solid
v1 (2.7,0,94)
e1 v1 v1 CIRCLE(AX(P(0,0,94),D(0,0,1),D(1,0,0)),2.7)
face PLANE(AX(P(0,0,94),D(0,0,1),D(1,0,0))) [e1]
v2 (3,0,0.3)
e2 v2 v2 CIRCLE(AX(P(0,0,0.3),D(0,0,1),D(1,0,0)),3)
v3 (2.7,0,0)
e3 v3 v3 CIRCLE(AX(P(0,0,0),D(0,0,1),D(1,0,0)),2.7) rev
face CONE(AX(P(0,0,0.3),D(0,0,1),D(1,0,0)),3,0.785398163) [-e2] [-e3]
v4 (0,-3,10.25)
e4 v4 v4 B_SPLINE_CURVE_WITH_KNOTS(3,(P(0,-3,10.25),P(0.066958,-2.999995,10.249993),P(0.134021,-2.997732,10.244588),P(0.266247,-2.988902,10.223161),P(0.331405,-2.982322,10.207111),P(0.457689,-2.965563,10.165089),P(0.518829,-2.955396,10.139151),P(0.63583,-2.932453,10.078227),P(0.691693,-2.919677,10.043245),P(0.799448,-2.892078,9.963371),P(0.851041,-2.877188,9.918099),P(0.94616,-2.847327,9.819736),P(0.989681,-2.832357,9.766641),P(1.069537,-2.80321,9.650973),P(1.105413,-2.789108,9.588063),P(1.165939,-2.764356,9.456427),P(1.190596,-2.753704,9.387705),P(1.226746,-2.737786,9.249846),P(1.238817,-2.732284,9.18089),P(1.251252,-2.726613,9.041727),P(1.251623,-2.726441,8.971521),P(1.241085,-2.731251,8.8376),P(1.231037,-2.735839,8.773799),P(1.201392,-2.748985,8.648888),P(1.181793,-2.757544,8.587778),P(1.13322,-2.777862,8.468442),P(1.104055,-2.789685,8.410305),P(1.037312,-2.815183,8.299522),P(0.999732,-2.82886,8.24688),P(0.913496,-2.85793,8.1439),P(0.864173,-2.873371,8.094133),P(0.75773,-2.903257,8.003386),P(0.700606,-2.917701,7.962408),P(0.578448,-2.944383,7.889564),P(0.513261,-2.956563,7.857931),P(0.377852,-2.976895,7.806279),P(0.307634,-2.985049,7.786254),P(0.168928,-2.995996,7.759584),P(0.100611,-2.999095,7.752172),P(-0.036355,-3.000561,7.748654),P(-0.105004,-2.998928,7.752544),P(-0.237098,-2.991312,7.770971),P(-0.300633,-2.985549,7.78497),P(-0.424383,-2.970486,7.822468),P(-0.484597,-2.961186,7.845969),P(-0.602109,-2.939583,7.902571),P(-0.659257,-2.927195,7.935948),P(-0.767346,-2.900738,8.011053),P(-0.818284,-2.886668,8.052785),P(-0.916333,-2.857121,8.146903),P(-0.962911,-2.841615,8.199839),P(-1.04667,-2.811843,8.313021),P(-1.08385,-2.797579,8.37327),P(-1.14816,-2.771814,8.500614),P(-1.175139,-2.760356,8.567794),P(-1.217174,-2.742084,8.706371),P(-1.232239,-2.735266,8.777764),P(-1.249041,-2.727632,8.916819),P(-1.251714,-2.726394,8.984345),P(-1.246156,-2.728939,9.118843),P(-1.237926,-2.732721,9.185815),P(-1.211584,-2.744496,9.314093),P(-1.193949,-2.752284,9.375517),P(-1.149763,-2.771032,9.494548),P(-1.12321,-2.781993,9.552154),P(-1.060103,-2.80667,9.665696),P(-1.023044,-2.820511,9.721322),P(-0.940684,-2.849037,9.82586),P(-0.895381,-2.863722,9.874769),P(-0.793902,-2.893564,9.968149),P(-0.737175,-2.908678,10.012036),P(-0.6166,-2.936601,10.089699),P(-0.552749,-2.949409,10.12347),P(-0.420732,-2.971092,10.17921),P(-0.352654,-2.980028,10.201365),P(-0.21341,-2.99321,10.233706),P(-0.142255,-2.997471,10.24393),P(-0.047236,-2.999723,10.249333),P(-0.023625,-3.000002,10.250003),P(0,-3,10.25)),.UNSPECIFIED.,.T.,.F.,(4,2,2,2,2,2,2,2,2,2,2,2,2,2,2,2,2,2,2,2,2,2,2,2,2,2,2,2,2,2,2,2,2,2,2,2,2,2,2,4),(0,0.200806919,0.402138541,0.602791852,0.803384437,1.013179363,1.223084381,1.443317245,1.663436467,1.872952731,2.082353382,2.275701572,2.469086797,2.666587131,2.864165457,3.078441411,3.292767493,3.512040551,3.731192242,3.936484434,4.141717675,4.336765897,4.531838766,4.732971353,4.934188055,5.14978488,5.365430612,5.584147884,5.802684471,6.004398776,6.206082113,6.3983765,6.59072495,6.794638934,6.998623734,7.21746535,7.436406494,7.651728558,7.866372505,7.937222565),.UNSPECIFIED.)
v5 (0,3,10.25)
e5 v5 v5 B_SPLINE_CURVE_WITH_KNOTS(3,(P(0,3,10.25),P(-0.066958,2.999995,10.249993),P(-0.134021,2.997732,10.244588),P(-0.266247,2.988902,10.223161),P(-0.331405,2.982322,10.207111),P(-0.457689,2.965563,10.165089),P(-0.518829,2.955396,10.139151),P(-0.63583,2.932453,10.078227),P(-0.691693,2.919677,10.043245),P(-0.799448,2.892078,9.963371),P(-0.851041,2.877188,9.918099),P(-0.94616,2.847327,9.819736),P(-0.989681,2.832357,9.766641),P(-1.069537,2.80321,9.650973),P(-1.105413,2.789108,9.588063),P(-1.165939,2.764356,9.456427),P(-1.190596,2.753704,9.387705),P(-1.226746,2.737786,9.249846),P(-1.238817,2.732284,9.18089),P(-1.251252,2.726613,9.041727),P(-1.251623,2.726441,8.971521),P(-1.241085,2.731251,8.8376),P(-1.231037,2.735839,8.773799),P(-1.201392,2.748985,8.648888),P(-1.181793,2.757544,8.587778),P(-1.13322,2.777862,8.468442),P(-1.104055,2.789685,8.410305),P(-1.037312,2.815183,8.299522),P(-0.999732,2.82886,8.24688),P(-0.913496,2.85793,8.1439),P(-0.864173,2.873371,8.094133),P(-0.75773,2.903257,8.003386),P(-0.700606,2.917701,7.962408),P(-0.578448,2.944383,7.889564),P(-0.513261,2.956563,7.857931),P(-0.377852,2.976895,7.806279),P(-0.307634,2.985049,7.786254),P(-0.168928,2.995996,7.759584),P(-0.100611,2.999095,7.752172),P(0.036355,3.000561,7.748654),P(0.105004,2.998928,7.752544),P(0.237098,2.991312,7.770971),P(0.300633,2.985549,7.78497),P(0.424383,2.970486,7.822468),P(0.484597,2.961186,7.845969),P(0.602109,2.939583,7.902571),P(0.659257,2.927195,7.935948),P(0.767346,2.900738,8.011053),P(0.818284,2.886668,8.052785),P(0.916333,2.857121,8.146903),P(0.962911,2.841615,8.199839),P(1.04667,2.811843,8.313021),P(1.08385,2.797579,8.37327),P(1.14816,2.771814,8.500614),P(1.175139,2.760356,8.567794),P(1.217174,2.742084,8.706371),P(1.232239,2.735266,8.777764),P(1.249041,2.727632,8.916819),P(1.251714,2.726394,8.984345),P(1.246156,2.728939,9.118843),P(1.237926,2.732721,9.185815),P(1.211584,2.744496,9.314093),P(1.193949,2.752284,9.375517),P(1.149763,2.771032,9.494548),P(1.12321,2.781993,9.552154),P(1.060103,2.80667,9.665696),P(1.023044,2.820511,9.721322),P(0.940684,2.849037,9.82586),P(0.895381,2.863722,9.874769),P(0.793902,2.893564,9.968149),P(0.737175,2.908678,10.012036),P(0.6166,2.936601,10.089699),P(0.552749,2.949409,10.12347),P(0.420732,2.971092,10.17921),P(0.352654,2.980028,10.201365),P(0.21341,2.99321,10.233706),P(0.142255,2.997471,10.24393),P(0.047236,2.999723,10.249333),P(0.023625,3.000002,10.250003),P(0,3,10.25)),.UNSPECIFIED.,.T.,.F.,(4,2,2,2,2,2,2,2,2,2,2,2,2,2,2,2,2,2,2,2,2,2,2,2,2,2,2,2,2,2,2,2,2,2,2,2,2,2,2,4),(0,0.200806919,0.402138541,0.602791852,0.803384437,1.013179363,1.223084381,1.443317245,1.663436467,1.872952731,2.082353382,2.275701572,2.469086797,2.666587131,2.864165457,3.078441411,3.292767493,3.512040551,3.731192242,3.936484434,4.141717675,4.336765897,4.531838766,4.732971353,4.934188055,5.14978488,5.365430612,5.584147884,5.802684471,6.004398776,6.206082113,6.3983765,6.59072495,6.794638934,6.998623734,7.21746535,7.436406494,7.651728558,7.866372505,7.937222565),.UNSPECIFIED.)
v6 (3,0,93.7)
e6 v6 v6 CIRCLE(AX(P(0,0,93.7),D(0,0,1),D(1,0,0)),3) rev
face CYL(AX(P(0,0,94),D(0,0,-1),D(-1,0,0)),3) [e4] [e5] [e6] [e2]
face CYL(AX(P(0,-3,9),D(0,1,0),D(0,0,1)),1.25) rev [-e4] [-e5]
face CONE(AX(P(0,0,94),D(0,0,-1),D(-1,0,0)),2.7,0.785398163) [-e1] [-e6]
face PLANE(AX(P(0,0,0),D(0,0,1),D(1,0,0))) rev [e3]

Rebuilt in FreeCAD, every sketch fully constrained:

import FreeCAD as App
import Part
import Sketcher

V = App.Vector


def edges_at(feature, points):
    """Names of the edges that pass closest to the given points."""
    edges = feature.Shape.Edges
    near = lambda p: min(range(len(edges)), key=lambda i: edges[i].distToShape(Part.Vertex(*p))[0])
    return sorted({f"Edge{near(p) + 1}" for p in points})

doc = App.newDocument("Part")
params = doc.addObject("Spreadsheet::Sheet", "Params")
for row, (alias, value) in enumerate([
    ("sketch1_diameter", "6 mm"),
    ("pad1_length", "94 mm"),
    ("sketch2_diameter", "2.5 mm"),
    ("chamfer_size", "0.3 mm"),
], start=1):
    params.set(f"A{row}", alias)
    params.set(f"B{row}", "=" + value)
    params.setAlias(f"B{row}", alias)

body = doc.addObject("PartDesign::Body", "Body")

# Sketch on XY plane
sketch1 = body.newObject("Sketcher::SketchObject", "Sketch")
sketch1.AttachmentSupport = (doc.getObject("XY_Plane"), [""])
sketch1.MapMode = "FlatFace"
sketch1.addGeometry(Part.Circle(V(0, 0, 0), V(0, 0, 1), 3), False)
sketch1.addConstraint([
    Sketcher.Constraint("Coincident", 0, 3, -1, 1),
    Sketcher.Constraint("Diameter", 0, 6.0),
])
sketch1.setExpression("Constraints[1]", "Params.sketch1_diameter")
pad1 = body.newObject("PartDesign::Pad", "Pad")
pad1.Profile = sketch1
pad1.setExpression("Length", "Params.pad1_length")

# Sketch on XZ plane
sketch2 = body.newObject("Sketcher::SketchObject", "Sketch001")
sketch2.AttachmentSupport = (doc.getObject("XZ_Plane"), [""])
sketch2.MapMode = "FlatFace"
sketch2.addGeometry(Part.Circle(V(0, 9, 0), V(0, 0, 1), 1.2), False)
sketch2.addConstraint([
    Sketcher.Constraint("PointOnObject", 0, 3, -2),
    Sketcher.Constraint("Diameter", 0, 2.5),
    Sketcher.Constraint("DistanceY", -1, 1, 0, 3, 9.0),
])
sketch2.setExpression("Constraints[1]", "Params.sketch2_diameter")
pocket1 = body.newObject("PartDesign::Pocket", "Pocket")
pocket1.Profile = sketch2
pocket1.Type = "ThroughAll"
pocket1.Midplane = True
doc.recompute()

chamfer = body.newObject("PartDesign::Chamfer", "Chamfer")
chamfer.Base = (pocket1, edges_at(pocket1, [(-3, 0, 0), (-3, 0, 94)]))
chamfer.setExpression("Size", "Params.chamfer_size")

doc.recompute()
